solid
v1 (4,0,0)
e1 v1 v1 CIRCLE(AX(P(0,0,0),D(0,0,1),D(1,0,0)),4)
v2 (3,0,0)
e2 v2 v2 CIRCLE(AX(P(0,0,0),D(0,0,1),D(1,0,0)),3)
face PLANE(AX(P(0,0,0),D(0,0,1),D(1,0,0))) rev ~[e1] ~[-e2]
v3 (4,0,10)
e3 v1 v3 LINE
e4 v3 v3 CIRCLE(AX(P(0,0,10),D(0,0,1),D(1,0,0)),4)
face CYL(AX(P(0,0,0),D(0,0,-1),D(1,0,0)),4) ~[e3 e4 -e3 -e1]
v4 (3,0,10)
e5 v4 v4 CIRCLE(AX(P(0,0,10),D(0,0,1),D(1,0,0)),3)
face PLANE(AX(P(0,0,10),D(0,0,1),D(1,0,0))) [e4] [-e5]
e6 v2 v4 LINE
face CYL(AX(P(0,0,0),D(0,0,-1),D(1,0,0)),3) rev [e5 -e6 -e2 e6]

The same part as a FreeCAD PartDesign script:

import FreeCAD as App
import Part
import Sketcher

doc = App.newDocument("Part")
body = doc.addObject("PartDesign::Body", "Body")

sketch1 = body.newObject("Sketcher::SketchObject", "Sketch")
sketch1.AttachmentSupport = (doc.getObject("XY_Plane"), [""])
sketch1.MapMode = "FlatFace"
sketch1.addGeometry(Part.Circle(App.Vector(0, 0, 0), App.Vector(0, 0, 1), 4), False)
sketch1.addGeometry(Part.Circle(App.Vector(0, 0, 0), App.Vector(0, 0, 1), 3), False)
sketch1.addConstraint(Sketcher.Constraint("Coincident", 0, 3, -1, 1))
sketch1.addConstraint(Sketcher.Constraint("Coincident", 1, 3, -1, 1))
sketch1.addConstraint(Sketcher.Constraint("Diameter", 0, 8.0))
sketch1.addConstraint(Sketcher.Constraint("Diameter", 1, 6.0))
pad1 = body.newObject("PartDesign::Pad", "Pad")
pad1.Profile = sketch1
pad1.Length = 10

doc.recompute()
